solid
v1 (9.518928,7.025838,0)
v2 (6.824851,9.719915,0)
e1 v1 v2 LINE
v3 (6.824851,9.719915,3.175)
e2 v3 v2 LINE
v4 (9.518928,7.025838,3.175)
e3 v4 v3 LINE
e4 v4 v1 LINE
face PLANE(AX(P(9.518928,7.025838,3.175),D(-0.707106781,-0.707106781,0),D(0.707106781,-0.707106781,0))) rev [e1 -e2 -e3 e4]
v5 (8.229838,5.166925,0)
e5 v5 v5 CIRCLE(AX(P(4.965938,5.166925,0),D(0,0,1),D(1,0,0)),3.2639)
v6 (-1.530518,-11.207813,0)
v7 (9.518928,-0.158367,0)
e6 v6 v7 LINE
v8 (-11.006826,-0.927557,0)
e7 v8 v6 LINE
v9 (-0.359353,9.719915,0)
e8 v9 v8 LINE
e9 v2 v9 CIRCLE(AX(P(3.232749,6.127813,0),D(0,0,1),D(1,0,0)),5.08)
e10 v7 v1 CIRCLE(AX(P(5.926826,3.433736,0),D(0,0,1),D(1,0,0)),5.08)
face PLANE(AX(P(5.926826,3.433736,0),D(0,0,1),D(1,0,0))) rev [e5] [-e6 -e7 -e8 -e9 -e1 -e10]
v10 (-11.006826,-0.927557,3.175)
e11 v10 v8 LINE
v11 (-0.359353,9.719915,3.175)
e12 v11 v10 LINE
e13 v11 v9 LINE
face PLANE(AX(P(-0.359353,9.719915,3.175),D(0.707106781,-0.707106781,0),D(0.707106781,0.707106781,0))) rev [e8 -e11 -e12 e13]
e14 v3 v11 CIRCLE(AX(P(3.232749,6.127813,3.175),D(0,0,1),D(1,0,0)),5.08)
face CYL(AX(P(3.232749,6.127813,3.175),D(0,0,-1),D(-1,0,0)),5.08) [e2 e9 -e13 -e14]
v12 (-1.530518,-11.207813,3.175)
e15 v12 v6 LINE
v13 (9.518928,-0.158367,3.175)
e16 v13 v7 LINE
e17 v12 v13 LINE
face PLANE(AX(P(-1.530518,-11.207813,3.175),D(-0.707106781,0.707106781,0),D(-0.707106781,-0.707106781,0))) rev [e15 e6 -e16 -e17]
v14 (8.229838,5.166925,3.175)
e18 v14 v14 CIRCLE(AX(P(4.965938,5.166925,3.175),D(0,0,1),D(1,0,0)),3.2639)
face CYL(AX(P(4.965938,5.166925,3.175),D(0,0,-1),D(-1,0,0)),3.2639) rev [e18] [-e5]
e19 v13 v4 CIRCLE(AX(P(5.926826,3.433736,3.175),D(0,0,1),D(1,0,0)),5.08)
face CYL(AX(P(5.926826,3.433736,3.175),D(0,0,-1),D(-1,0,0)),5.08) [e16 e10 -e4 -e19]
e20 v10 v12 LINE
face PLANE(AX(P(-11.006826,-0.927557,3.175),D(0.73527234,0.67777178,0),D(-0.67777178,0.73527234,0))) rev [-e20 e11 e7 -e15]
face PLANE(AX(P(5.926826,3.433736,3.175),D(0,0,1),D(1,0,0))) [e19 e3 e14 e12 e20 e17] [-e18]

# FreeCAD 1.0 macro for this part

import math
import FreeCAD as App
import Part
import Sketcher

V = App.Vector
Q = App.Units.Quantity

doc = App.newDocument("Part")
body = doc.addObject("PartDesign::Body", "Body")

# Sketch on XY plane
sketch1 = body.newObject("Sketcher::SketchObject", "Sketch")
sketch1.AttachmentSupport = (doc.getObject("XY_Plane"), [""])
sketch1.MapMode = "FlatFace"
sketch1.addGeometry(Part.LineSegment(V(-1.5, -11.2, 0), V(9.5, -0.2, 0)), False)
sketch1.addGeometry(Part.ArcOfCircle(Part.Circle(V(5.9, 3.4, 0), V(0, 0, 1), 5.1), math.radians(-45), math.radians(45)), False)
sketch1.addGeometry(Part.LineSegment(V(9.5, 7, 0), V(6.8, 9.7, 0)), False)
sketch1.addGeometry(Part.ArcOfCircle(Part.Circle(V(3.2, 6.1, 0), V(0, 0, 1), 5.1), math.radians(45), math.radians(135)), False)
sketch1.addGeometry(Part.LineSegment(V(-0.4, 9.7, 0), V(-11, -0.9, 0)), False)
sketch1.addGeometry(Part.LineSegment(V(-11, -0.9, 0), V(-1.5, -11.2, 0)), False)
sketch1.addGeometry(Part.Circle(V(5, 5.2, 0), V(0, 0, 1), 3.3), False)
sketch1.addConstraint(Sketcher.Constraint("Tangent", 0, 2, 1, 1))
sketch1.addConstraint(Sketcher.Constraint("Tangent", 1, 2, 2, 1))
sketch1.addConstraint(Sketcher.Constraint("Tangent", 2, 2, 3, 1))
sketch1.addConstraint(Sketcher.Constraint("Tangent", 3, 2, 4, 1))
sketch1.addConstraint(Sketcher.Constraint("Coincident", 4, 2, 5, 1))
sketch1.addConstraint(Sketcher.Constraint("Coincident", 5, 2, 0, 1))
sketch1.addConstraint(Sketcher.Constraint("Equal", 1, 3))
sketch1.addConstraint(Sketcher.Constraint("Perpendicular", 0, 2))
sketch1.addConstraint(Sketcher.Constraint("Perpendicular", 2, 4))
sketch1.addConstraint(Sketcher.Constraint("Horizontal", 2, 2, 3, 2))
sketch1.addConstraint(Sketcher.Constraint("Radius", 1, Q("0.2 in")))
sketch1.addConstraint(Sketcher.Constraint("Diameter", 6, Q("0.257 in")))
sketch1.addConstraint(Sketcher.Constraint("Distance", 2, Q("0.15 in")))
sketch1.addConstraint(Sketcher.Constraint("Distance", 4, 15.0578))
sketch1.addConstraint(Sketcher.Constraint("Distance", 5, 13.981562))
sketch1.addConstraint(Sketcher.Constraint("DistanceX", -1, 1, 3, 3, 3.232749))
sketch1.addConstraint(Sketcher.Constraint("DistanceX", -1, 1, 6, 3, 4.965938))
sketch1.addConstraint(Sketcher.Constraint("DistanceY", -1, 1, 1, 2, 7.025838))
sketch1.addConstraint(Sketcher.Constraint("DistanceY", 1, 3, 6, 3, 1.733189))
pad1 = body.newObject("PartDesign::Pad", "Pad")
pad1.Profile = sketch1
pad1.Length = Q("0.125 in")

doc.recompute()
